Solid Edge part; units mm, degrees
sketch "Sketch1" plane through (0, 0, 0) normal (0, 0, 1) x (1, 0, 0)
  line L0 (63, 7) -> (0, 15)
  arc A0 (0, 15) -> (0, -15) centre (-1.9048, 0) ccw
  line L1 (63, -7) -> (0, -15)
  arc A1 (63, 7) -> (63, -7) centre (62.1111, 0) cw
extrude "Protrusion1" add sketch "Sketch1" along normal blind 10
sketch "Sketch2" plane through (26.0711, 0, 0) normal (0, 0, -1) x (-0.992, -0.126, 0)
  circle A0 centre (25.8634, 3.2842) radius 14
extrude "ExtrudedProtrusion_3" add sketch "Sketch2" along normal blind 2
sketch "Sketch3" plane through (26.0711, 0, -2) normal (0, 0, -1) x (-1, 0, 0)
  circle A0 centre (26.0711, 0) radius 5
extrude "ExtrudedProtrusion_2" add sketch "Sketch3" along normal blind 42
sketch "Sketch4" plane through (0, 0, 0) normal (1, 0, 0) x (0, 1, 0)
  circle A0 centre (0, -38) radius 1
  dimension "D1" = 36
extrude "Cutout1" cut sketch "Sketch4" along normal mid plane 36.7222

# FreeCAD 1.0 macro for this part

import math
import FreeCAD as App
import Part
import Sketcher
Q = App.Units.Quantity

doc = App.newDocument("Part")
body = doc.addObject("PartDesign::Body", "Body")

# Sketch on XY plane
sketch1 = doc.addObject("Sketcher::SketchObject", "Sketch")
body.addObject(sketch1)
sketch1.AttachmentSupport = (doc.XY_Plane, [""])
sketch1.MapMode = "FlatFace"
sketch1.addGeometry([
    Part.ArcOfCircle(Part.Circle(App.Vector(62, 0, 0), App.Vector(0, 0, 1), 7), math.radians(-83), math.radians(83)),
    Part.LineSegment(App.Vector(63, 7, 0), App.Vector(0, 15, 0)),
    Part.ArcOfCircle(Part.Circle(App.Vector(-2, 0, 0), App.Vector(0, 0, 1), 15), math.radians(83), math.radians(277)),
    Part.LineSegment(App.Vector(0, -15, 0), App.Vector(63, -7, 0)),
], False)
sketch1.addConstraint([
    Sketcher.Constraint("Tangent", 0, 2, 1, 1),
    Sketcher.Constraint("Tangent", 1, 2, 2, 1),
    Sketcher.Constraint("Tangent", 2, 2, 3, 1),
    Sketcher.Constraint("Tangent", 3, 2, 0, 1),
    Sketcher.Constraint("Symmetric", 1, 2, 2, 2, -1, 1),
    Sketcher.Constraint("PointOnObject", 0, 3, -1),
    Sketcher.Constraint("DistanceX", -1, 1, 0, 2, Q("63 mm")),
    Sketcher.Constraint("DistanceY", -1, 1, 0, 2, Q("7 mm")),
    Sketcher.Constraint("DistanceY", -1, 1, 1, 2, Q("15 mm")),
])
pad1 = doc.addObject("PartDesign::Pad", "Pad")
body.addObject(pad1)
pad1.Profile = sketch1
pad1.Length = 10

# Sketch on XY plane
sketch2 = doc.addObject("Sketcher::SketchObject", "Sketch001")
body.addObject(sketch2)
sketch2.AttachmentSupport = (doc.XY_Plane, [""])
sketch2.MapMode = "FlatFace"
sketch2.addGeometry(Part.Circle(App.Vector(0, 0, 0), App.Vector(0, 0, 1), 14), False)
sketch2.addConstraint([
    Sketcher.Constraint("PointOnObject", 0, 3, -2),
    Sketcher.Constraint("Diameter", 0, Q("28 mm")),
    Sketcher.Constraint("DistanceY", 0, 3, -1, 1, Q("0.0009 mm")),
])
pad2 = doc.addObject("PartDesign::Pad", "Pad001")
body.addObject(pad2)
pad2.Profile = sketch2
pad2.Length = 2
pad2.Reversed = True

# Sketch on XY plane
sketch3 = doc.addObject("Sketcher::SketchObject", "Sketch002")
body.addObject(sketch3)
sketch3.AttachmentSupport = (doc.XY_Plane, [""])
sketch3.MapMode = "FlatFace"
sketch3.AttachmentOffset = App.Placement(App.Vector(0, 0, -2), App.Rotation())
sketch3.addGeometry(Part.Circle(App.Vector(0, 0, 0), App.Vector(0, 0, 1), 5), False)
sketch3.addConstraint([
    Sketcher.Constraint("Coincident", 0, 3, -1, 1),
    Sketcher.Constraint("Diameter", 0, Q("10 mm")),
])
pad3 = doc.addObject("PartDesign::Pad", "Pad002")
body.addObject(pad3)
pad3.Profile = sketch3
pad3.Length = 42
pad3.Reversed = True

# Sketch on YZ plane
sketch4 = doc.addObject("Sketcher::SketchObject", "Sketch003")
body.addObject(sketch4)
sketch4.AttachmentSupport = (doc.YZ_Plane, [""])
sketch4.MapMode = "FlatFace"
sketch4.addGeometry(Part.Circle(App.Vector(0, -38, 0), App.Vector(0, 0, 1), 1), False)
sketch4.addConstraint([
    Sketcher.Constraint("PointOnObject", 0, 3, -2),
    Sketcher.Constraint("Diameter", 0, Q("2 mm")),
    Sketcher.Constraint("DistanceY", 0, 3, -1, 1, Q("38 mm")),
])
pocket1 = doc.addObject("PartDesign::Pocket", "Pocket")
body.addObject(pocket1)
pocket1.Profile = sketch4
pocket1.Length = 36.7222
pocket1.Midplane = True

doc.recompute()
